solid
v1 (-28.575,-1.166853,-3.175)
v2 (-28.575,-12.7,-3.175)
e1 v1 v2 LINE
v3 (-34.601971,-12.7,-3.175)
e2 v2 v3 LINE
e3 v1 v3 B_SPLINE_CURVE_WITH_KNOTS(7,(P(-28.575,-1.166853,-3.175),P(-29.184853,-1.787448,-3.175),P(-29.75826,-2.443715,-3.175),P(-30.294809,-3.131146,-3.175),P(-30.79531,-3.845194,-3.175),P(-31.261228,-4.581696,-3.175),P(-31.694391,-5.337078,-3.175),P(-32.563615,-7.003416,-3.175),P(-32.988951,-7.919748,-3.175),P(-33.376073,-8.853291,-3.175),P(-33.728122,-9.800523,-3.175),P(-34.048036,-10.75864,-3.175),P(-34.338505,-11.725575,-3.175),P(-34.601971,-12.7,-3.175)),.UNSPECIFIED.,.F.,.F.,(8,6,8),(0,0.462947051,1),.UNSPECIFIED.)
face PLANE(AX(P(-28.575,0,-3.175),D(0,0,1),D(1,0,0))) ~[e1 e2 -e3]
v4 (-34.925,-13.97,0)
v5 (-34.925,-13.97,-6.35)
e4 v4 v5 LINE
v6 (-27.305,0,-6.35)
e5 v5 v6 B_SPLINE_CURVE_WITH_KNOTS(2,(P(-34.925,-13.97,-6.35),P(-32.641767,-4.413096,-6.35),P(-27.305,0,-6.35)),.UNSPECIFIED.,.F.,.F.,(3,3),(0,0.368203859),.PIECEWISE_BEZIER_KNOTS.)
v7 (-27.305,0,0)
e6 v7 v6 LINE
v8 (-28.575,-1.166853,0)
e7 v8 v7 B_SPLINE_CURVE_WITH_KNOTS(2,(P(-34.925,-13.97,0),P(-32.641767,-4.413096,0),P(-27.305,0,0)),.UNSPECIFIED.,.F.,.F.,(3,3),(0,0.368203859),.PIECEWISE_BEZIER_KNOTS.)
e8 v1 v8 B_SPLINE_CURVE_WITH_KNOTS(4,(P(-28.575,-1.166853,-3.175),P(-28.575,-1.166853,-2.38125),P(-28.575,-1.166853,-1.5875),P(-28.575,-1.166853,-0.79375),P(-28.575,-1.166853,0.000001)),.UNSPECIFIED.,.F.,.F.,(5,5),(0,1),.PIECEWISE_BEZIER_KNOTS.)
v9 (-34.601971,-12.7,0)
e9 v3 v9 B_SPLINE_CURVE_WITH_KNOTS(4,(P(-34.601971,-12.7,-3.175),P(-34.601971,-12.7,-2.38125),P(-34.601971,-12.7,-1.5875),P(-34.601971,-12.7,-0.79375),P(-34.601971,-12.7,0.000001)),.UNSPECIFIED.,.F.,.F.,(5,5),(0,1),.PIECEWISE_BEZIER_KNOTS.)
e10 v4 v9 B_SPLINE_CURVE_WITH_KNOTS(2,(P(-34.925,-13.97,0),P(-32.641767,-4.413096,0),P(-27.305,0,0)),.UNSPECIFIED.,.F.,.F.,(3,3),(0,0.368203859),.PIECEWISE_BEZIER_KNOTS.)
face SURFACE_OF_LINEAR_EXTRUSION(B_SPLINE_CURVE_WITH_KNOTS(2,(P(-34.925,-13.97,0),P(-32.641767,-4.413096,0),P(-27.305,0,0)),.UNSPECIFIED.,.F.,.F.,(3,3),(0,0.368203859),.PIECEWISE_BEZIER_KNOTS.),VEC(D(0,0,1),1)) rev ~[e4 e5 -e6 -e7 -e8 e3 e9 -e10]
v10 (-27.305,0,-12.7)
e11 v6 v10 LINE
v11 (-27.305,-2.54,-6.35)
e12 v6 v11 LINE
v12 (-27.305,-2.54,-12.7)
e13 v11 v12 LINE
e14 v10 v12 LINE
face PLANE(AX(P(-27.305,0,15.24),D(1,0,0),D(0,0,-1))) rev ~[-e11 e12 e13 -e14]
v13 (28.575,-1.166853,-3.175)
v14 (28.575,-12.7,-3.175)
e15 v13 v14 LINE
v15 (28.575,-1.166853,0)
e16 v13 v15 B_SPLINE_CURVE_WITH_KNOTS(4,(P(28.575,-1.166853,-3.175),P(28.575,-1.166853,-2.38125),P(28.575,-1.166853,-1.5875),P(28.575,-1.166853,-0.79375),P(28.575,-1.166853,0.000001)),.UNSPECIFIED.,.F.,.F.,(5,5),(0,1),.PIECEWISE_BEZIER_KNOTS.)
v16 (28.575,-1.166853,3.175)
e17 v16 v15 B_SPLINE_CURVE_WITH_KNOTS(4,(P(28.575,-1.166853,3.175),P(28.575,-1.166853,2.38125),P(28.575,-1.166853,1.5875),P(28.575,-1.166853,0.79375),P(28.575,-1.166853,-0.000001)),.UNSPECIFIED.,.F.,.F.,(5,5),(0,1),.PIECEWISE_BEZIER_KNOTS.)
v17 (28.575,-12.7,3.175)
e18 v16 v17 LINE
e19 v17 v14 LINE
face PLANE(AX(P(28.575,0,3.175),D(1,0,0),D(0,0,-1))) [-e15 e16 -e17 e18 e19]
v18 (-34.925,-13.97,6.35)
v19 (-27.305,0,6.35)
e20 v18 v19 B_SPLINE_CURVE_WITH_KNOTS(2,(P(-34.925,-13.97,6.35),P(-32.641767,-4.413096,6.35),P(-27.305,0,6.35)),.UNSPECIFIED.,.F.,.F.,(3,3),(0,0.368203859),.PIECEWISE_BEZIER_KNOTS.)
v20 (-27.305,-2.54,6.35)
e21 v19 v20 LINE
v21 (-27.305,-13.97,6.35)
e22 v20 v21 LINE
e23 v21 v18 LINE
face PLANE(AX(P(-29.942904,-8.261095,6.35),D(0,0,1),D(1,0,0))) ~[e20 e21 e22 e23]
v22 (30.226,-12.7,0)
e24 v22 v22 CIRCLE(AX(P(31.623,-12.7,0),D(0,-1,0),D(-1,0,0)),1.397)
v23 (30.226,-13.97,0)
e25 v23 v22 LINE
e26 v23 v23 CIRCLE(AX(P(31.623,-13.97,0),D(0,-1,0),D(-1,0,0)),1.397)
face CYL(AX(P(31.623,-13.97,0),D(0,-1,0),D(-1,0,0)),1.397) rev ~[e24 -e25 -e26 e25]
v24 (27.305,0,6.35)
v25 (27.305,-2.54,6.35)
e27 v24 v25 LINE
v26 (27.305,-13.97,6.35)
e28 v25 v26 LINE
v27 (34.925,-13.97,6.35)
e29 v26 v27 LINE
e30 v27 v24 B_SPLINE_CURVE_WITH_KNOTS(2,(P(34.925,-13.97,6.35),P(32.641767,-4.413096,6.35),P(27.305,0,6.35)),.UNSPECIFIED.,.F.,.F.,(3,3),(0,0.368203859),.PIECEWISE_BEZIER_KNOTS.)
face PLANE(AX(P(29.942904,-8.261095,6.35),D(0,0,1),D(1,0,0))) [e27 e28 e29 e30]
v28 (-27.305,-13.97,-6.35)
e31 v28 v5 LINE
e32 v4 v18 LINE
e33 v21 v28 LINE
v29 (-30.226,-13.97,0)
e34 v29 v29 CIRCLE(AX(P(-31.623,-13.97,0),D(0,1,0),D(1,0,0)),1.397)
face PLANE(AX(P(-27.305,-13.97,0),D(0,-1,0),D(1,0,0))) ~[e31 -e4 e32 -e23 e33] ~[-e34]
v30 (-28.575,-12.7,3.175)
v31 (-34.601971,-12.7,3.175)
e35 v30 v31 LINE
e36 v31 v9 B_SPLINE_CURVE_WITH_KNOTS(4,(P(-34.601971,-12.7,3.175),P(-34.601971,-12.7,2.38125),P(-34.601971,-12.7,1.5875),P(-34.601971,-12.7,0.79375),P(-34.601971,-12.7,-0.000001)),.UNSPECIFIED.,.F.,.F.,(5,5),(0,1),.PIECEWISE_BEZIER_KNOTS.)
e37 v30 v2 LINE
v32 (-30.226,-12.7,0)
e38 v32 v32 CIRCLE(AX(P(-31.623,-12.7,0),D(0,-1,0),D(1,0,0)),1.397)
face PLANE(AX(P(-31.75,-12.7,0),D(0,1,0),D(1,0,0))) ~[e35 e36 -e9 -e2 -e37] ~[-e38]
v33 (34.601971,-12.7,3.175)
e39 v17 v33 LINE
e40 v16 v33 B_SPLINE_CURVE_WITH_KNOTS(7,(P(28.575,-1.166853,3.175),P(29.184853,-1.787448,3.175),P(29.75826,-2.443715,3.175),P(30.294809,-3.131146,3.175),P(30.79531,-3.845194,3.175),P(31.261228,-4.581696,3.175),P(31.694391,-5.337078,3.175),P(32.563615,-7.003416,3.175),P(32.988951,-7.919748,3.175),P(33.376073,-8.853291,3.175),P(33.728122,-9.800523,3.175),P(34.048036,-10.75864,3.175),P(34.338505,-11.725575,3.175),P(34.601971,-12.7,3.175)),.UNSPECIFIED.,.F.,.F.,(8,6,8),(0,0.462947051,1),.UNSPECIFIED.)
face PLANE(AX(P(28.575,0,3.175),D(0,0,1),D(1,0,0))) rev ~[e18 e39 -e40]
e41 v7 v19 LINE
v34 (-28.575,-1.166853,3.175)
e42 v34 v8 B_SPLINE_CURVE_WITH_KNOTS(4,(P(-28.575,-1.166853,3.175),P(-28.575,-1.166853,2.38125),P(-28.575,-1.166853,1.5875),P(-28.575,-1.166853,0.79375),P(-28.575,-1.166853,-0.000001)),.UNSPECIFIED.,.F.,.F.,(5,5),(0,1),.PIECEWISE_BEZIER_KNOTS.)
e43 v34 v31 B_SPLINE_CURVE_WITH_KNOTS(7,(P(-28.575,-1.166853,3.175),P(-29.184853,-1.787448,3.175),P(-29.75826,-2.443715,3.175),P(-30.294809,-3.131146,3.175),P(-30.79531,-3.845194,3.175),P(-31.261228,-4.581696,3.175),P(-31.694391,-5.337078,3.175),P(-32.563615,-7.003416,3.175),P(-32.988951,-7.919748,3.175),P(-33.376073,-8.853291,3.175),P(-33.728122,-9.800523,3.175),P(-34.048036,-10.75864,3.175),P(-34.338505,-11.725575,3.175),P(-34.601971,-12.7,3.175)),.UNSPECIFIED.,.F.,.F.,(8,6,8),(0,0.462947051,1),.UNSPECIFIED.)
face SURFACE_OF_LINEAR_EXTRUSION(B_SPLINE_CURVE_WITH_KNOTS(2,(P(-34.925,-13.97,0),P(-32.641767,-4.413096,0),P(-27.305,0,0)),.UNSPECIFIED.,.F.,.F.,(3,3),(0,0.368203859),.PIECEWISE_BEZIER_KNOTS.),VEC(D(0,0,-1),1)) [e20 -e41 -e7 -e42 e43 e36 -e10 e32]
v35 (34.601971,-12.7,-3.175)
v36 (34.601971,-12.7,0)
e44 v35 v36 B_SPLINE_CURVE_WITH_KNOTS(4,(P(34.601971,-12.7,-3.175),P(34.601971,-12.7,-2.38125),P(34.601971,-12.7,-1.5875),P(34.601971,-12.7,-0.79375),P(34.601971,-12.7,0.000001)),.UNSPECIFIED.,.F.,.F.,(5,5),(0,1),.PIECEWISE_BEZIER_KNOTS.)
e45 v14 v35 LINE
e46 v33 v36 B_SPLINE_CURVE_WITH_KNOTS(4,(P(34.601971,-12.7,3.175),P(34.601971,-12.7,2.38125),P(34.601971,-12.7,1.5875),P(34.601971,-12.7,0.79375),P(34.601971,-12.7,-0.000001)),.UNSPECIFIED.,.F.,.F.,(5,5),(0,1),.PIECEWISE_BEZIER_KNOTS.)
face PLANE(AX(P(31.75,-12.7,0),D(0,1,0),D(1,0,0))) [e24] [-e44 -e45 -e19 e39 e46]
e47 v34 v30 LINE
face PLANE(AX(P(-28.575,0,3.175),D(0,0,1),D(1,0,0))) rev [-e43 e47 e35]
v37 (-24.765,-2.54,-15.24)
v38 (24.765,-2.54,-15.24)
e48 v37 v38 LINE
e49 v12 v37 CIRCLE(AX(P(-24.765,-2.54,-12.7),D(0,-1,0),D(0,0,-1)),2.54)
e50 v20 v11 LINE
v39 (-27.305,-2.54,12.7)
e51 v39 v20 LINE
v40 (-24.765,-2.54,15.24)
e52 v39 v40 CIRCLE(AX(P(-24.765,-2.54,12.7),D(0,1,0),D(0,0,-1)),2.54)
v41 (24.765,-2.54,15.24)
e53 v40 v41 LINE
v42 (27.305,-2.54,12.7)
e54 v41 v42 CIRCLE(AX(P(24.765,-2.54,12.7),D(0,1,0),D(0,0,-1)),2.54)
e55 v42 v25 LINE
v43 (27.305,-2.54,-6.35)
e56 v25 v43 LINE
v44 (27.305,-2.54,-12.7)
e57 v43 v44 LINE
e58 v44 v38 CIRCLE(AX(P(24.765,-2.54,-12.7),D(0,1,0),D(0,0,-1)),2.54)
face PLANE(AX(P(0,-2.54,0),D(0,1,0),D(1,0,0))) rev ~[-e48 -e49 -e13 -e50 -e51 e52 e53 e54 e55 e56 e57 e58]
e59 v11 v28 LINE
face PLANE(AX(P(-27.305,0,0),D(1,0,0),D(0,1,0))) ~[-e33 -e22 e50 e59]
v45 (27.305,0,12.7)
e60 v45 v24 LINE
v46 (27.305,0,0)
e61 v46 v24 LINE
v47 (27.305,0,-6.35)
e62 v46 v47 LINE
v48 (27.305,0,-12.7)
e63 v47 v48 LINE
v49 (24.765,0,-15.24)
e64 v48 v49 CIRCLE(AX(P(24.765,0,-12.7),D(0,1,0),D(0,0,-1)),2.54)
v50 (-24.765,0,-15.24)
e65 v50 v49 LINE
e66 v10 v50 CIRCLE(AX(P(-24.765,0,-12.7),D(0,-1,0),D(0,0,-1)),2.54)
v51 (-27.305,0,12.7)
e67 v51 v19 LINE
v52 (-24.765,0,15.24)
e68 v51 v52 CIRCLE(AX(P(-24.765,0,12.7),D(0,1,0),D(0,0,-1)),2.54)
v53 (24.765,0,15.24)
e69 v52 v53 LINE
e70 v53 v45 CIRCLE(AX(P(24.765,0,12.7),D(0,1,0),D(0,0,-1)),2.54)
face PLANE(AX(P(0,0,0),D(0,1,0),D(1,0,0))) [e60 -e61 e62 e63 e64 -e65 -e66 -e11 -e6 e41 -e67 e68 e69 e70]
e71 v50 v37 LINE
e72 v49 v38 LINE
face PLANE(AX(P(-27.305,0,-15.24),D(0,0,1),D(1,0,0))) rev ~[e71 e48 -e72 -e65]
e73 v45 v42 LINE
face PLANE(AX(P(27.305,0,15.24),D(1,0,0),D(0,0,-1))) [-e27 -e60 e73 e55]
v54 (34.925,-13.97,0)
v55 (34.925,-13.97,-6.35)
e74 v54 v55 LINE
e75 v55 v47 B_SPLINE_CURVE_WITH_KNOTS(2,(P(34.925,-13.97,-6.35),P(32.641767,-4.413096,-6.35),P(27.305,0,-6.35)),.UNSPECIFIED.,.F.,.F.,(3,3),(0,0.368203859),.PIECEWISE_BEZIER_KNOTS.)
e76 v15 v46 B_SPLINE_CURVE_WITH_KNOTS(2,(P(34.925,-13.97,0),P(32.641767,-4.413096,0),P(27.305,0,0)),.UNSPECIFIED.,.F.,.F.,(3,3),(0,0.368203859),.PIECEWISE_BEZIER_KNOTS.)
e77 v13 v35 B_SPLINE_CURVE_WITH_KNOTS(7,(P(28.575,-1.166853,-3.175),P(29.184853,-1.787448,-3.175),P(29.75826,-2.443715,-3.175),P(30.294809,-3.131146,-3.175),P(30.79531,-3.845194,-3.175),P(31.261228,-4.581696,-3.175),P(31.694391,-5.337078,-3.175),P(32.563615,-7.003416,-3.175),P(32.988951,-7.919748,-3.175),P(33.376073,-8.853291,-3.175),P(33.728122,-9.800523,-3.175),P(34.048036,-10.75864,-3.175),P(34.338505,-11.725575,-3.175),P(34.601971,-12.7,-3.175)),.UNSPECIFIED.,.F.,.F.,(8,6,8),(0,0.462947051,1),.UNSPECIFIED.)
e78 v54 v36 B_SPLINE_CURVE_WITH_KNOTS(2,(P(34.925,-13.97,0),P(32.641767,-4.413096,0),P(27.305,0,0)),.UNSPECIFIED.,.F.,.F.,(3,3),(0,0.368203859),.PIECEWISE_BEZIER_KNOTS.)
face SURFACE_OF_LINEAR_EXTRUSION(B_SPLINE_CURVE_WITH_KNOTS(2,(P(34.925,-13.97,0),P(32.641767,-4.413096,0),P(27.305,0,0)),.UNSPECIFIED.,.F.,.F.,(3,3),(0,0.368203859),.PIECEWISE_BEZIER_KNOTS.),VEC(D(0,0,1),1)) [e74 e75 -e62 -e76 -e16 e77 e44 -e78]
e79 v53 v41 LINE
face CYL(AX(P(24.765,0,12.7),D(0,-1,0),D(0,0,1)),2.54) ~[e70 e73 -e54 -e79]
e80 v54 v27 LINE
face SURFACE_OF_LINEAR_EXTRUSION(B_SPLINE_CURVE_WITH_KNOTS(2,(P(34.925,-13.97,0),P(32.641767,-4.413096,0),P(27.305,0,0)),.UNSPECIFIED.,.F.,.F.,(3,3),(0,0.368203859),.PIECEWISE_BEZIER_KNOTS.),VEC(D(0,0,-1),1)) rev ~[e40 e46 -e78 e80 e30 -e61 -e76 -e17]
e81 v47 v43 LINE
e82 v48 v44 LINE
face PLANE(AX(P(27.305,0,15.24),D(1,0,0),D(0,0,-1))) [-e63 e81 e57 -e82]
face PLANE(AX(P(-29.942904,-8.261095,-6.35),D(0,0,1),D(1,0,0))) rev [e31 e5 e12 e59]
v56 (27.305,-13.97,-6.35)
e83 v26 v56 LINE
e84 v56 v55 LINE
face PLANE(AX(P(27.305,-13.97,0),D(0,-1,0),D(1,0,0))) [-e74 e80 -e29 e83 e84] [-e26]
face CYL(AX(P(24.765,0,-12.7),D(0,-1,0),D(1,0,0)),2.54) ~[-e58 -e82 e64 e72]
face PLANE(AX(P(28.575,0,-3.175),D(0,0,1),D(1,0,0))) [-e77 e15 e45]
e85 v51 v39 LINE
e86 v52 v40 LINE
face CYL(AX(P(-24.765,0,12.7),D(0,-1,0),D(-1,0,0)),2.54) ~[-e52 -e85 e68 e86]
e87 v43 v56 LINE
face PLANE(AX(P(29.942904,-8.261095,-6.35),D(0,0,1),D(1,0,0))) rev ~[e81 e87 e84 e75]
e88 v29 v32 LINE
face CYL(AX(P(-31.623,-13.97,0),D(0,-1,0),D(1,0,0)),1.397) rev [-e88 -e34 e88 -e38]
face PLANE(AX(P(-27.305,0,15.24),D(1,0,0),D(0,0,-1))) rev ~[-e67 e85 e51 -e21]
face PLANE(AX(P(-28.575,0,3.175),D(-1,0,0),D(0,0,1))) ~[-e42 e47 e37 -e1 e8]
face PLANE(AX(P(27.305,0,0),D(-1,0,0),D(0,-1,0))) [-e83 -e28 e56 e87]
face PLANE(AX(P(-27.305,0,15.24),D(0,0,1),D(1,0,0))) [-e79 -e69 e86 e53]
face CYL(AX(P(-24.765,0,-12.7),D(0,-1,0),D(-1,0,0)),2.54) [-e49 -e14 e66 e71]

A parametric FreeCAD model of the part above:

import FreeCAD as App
import Part
import Sketcher

V = App.Vector
Q = App.Units.Quantity


def edges_at(feature, points):
    """Names of the edges that pass closest to the given points."""
    edges = feature.Shape.Edges
    near = lambda p: min(range(len(edges)), key=lambda i: edges[i].distToShape(Part.Vertex(*p))[0])
    return sorted({f"Edge{near(p) + 1}" for p in points})


def add_polygon(sketch, points):
    """Adds a closed chain of lines whose ends are joined by coincident constraints."""
    first, n = sketch.GeometryCount, len(points)
    for a, b in zip(points, points[1:] + points[:1]):
        sketch.addGeometry(Part.LineSegment(App.Vector(*a, 0), App.Vector(*b, 0)), False)
    for i in range(n):
        sketch.addConstraint(Sketcher.Constraint("Coincident", first + i, 2, first + (i + 1) % n, 1))

doc = App.newDocument("Part")
body = doc.addObject("PartDesign::Body", "Body")

# Sketch on XZ plane
sketch1 = body.newObject("Sketcher::SketchObject", "Sketch")
sketch1.AttachmentSupport = (doc.getObject("XZ_Plane"), [""])
sketch1.MapMode = "FlatFace"
add_polygon(sketch1, [(-27.305, -15.24), (-27.305, 15.24), (27.305, 15.24), (27.305, -15.24)])  # lines 0-3
sketch1.addConstraint(Sketcher.Constraint("Vertical", 0))
sketch1.addConstraint(Sketcher.Constraint("Horizontal", 1))
sketch1.addConstraint(Sketcher.Constraint("Vertical", 2))
sketch1.addConstraint(Sketcher.Constraint("Horizontal", 3))
sketch1.addConstraint(Sketcher.Constraint("Symmetric", 0, 2, 2, 2, -1, 1))
sketch1.addConstraint(Sketcher.Constraint("DistanceY", 0, 1, 0, 2, Q("1.2 in")))
sketch1.addConstraint(Sketcher.Constraint("DistanceX", 1, 1, 1, 2, Q("2.15 in")))
pad1 = body.newObject("PartDesign::Pad", "Pad")
pad1.Profile = sketch1
pad1.Length = Q("0.1 in")
doc.recompute()

fillet = body.newObject("PartDesign::Fillet", "Fillet")
fillet.Base = (pad1, edges_at(pad1, [
    (27.305, -1.27, 15.24),
    (-27.305, -1.27, 15.24),
    (-27.305, -1.27, -15.24),
    (27.305, -1.27, -15.24),
]))
fillet.Radius = Q("0.1 in")

# Sketch on XY plane
sketch2 = body.newObject("Sketcher::SketchObject", "Sketch001")
sketch2.AttachmentSupport = (doc.getObject("XY_Plane"), [""])
sketch2.MapMode = "FlatFace"
sketch2.addGeometry(Part.BSplineCurve([V(34.925, -13.97, 0), V(32.641767, -4.413096, 0), V(27.305, 0, 0)], [3, 3], [0, 0.368203859], False, 2, [1, 1, 1], False), False)
sketch2.addGeometry(Part.LineSegment(V(27.305, 0, 0), V(27.305, -13.97, 0)), False)
sketch2.addGeometry(Part.LineSegment(V(27.305, -13.97, 0), V(34.925, -13.97, 0)), False)
sketch2.addConstraint(Sketcher.Constraint("Block", 0))
sketch2.addConstraint(Sketcher.Constraint("Coincident", 0, 2, 1, 1))
sketch2.addConstraint(Sketcher.Constraint("Coincident", 1, 2, 2, 1))
sketch2.addConstraint(Sketcher.Constraint("Coincident", 2, 2, 0, 1))
sketch2.addConstraint(Sketcher.Constraint("Vertical", 1))
sketch2.addConstraint(Sketcher.Constraint("Horizontal", 2))
pad2 = body.newObject("PartDesign::Pad", "Pad001")
pad2.Profile = sketch2
pad2.Length = Q("0.5 in")
pad2.Midplane = True

# Sketch on XZ plane
sketch3 = body.newObject("Sketcher::SketchObject", "Sketch002")
sketch3.AttachmentSupport = (doc.getObject("XZ_Plane"), [""])
sketch3.MapMode = "FlatFace"
add_polygon(sketch3, [(28.575, -3.175), (28.575, 3.175), (34.925, 3.175), (34.925, -3.175)])  # lines 0-3
sketch3.addConstraint(Sketcher.Constraint("Vertical", 0))
sketch3.addConstraint(Sketcher.Constraint("Horizontal", 1))
sketch3.addConstraint(Sketcher.Constraint("Vertical", 2))
sketch3.addConstraint(Sketcher.Constraint("Horizontal", 3))
sketch3.addConstraint(Sketcher.Constraint("Equal", 3, 0))
sketch3.addConstraint(Sketcher.Constraint("DistanceX", 1, 1, 1, 2, Q("0.25 in")))
sketch3.addConstraint(Sketcher.Constraint("DistanceX", -1, 1, 0, 2, Q("1.125 in")))
sketch3.addConstraint(Sketcher.Constraint("DistanceY", -1, 1, 0, 2, Q("0.125 in")))
pocket1 = body.newObject("PartDesign::Pocket", "Pocket")
pocket1.Profile = sketch3
pocket1.Length = Q("0.5 in")
pocket1.Reversed = True

# Sketch on XZ plane
sketch4 = body.newObject("Sketcher::SketchObject", "Sketch003")
sketch4.AttachmentSupport = (doc.getObject("XZ_Plane"), [""])
sketch4.MapMode = "FlatFace"
sketch4.AttachmentOffset = App.Placement(V(0, 0, 0.55 * 25.4), App.Rotation())
sketch4.addGeometry(Part.Circle(V(31.623, 0, 0), V(0, 0, 1), 1.397), False)
sketch4.addConstraint(Sketcher.Constraint("PointOnObject", 0, 3, -1))
sketch4.addConstraint(Sketcher.Constraint("Diameter", 0, Q("0.11 in")))
sketch4.addConstraint(Sketcher.Constraint("DistanceX", -1, 1, 0, 3, Q("1.245 in")))
pocket2 = body.newObject("PartDesign::Pocket", "Pocket001")
pocket2.Profile = sketch4
pocket2.Type = "ThroughAll"
doc.recompute()

mirrored = body.newObject("PartDesign::Mirrored", "Mirrored")
mirrored.Originals = [pad2, pocket1, pocket2]
mirrored.MirrorPlane = (doc.getObject("YZ_Plane"), [""])
body.Tip = mirrored

doc.recompute()
